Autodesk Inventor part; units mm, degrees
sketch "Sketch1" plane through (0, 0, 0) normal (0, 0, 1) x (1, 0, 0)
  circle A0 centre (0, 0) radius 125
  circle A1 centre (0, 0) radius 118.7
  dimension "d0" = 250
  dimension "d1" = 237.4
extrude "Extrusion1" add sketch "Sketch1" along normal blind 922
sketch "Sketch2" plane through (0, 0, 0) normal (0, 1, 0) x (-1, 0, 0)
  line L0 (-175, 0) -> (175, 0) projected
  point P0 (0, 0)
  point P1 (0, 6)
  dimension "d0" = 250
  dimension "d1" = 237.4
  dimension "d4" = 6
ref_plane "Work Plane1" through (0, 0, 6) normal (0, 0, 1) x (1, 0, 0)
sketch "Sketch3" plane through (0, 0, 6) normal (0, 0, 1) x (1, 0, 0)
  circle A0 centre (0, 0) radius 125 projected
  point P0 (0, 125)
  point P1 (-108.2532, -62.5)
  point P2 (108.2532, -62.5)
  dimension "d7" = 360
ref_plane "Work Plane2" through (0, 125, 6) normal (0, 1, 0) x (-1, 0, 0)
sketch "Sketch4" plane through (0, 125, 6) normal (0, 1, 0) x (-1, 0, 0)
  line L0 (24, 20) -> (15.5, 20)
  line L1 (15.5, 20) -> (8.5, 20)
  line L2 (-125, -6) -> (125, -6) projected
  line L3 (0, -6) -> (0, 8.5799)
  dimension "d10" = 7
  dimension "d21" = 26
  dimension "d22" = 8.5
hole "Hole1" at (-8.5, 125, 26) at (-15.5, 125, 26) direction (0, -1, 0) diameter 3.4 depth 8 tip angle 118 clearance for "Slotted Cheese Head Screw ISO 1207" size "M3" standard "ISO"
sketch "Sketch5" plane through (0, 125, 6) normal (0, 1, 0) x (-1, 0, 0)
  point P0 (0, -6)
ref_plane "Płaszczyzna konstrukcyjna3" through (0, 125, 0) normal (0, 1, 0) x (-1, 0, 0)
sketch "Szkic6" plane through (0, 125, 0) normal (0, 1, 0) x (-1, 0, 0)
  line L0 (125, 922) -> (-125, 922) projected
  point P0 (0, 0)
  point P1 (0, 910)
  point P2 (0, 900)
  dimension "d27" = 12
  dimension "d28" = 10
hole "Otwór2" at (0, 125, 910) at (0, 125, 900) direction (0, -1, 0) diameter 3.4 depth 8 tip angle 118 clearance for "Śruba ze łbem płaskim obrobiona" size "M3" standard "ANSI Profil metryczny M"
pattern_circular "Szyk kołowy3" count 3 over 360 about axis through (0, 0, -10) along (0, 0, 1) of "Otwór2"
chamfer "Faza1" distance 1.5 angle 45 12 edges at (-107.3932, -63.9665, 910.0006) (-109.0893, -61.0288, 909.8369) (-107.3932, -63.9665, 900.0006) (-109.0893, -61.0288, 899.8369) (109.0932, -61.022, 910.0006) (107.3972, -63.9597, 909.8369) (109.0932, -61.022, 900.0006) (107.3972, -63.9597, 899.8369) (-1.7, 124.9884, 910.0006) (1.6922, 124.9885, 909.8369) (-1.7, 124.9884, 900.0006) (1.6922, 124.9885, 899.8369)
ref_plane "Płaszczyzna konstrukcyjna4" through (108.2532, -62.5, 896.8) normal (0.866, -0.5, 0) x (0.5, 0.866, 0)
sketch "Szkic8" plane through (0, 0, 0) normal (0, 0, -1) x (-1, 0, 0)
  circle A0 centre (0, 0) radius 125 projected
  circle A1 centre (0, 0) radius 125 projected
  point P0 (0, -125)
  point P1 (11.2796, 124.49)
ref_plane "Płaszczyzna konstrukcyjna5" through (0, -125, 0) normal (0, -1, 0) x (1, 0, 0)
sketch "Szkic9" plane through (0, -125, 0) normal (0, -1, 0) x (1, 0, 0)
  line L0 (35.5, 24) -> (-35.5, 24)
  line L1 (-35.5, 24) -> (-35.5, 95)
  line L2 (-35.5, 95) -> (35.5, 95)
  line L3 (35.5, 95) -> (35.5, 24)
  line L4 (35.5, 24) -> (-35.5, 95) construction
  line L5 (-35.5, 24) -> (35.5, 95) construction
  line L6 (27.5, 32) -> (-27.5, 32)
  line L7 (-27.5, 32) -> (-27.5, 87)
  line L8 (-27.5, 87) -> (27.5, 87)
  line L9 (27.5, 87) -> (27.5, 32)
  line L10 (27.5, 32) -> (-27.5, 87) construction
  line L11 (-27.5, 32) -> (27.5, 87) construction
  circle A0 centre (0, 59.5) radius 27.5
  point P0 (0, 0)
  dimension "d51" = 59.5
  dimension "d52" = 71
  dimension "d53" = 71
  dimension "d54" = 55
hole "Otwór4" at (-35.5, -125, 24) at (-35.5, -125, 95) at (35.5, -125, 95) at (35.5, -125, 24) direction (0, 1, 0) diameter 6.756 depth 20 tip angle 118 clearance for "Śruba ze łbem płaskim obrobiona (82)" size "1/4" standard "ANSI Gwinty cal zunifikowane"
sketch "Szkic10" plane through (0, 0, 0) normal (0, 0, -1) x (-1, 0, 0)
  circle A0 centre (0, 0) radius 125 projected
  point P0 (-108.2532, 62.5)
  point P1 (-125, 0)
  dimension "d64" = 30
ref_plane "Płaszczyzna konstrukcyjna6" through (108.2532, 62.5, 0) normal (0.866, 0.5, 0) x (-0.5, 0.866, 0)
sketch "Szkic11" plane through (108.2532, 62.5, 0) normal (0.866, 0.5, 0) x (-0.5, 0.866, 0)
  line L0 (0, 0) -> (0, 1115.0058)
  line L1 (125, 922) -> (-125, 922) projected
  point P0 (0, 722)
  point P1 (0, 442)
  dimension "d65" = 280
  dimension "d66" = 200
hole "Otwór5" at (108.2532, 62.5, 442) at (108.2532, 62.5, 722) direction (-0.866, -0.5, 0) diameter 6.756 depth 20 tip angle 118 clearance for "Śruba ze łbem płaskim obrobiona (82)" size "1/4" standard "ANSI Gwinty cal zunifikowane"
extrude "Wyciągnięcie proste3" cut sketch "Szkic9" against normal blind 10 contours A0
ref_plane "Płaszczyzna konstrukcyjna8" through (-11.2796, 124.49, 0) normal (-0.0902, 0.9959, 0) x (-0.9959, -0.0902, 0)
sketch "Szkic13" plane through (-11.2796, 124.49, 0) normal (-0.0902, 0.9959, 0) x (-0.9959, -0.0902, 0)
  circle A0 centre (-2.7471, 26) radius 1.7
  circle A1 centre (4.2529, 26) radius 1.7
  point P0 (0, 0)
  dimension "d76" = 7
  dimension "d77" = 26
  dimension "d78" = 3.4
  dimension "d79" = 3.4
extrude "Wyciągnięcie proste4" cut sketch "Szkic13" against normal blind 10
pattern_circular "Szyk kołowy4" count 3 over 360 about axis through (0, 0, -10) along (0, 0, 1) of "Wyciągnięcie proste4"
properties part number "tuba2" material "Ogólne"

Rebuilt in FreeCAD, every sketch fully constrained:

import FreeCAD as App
import Part
import Sketcher
from FreeCAD import Vector


def edges_at(feature, points):
    """Names of the edges that pass closest to the given points."""
    edges = feature.Shape.Edges
    near = lambda p: min(range(len(edges)), key=lambda i: edges[i].distToShape(Part.Vertex(*p))[0])
    return sorted({f"Edge{near(p) + 1}" for p in points})

doc = App.newDocument("Part")
body = doc.addObject("PartDesign::Body", "Body")

# Sketch on XY plane
sketch1 = body.newObject("Sketcher::SketchObject", "Sketch")
sketch1.AttachmentSupport = (doc.getObject("XY_Plane"), [""])
sketch1.MapMode = "FlatFace"
sketch1.addGeometry([
    Part.Circle(Vector(0, 0, 0), Vector(0, 0, 1), 125),
    Part.Circle(Vector(0, 0, 0), Vector(0, 0, 1), 118.7),
], False)
sketch1.addConstraint([
    Sketcher.Constraint("Coincident", 0, 3, -1, 1),
    Sketcher.Constraint("Coincident", 1, 3, -1, 1),
    Sketcher.Constraint("Diameter", 0, 250.0),
    Sketcher.Constraint("Diameter", 1, 237.4),
])
pad1 = body.newObject("PartDesign::Pad", "Pad")
pad1.Profile = sketch1
pad1.Length = 922

# Sketch on XZ plane
sketch2 = body.newObject("Sketcher::SketchObject", "Sketch001")
sketch2.AttachmentSupport = (doc.getObject("XZ_Plane"), [""])
sketch2.MapMode = "FlatFace"
sketch2.AttachmentOffset = App.Placement(Vector(0, 0, -125), App.Rotation())
sketch2.addGeometry([
    Part.Circle(Vector(-8.5, 26, 0), Vector(0, 0, 1), 1.7),
    Part.Circle(Vector(-15.5, 26, 0), Vector(0, 0, 1), 1.7),
], False)
sketch2.addConstraint([
    Sketcher.Constraint("Equal", 0, 1),
    Sketcher.Constraint("Horizontal", 0, 3, 1, 3),
    Sketcher.Constraint("Diameter", 0, 3.4),
    Sketcher.Constraint("DistanceY", -1, 1, 0, 3, 26.0),
    Sketcher.Constraint("DistanceX", 1, 3, 0, 3, 7.0),
    Sketcher.Constraint("DistanceX", 0, 3, -1, 1, 8.5),
])
doc.recompute()
hole = body.newObject("PartDesign::Hole", "Hole")
hole.Profile = sketch2
hole.ThreadType = "None"
hole.Diameter = 3.4
hole.DepthType = "Dimension"
hole.Depth = 8
hole.DrillPoint = "Angled"
hole.DrillPointAngle = 118
hole.Reversed = True

# Sketch on XZ plane
sketch3 = body.newObject("Sketcher::SketchObject", "Sketch002")
sketch3.AttachmentSupport = (doc.getObject("XZ_Plane"), [""])
sketch3.MapMode = "FlatFace"
sketch3.AttachmentOffset = App.Placement(Vector(0, 0, -125), App.Rotation())
sketch3.addGeometry([
    Part.Circle(Vector(0, 910, 0), Vector(0, 0, 1), 1.7),
    Part.Circle(Vector(0, 900, 0), Vector(0, 0, 1), 1.7),
], False)
sketch3.addConstraint([
    Sketcher.Constraint("Equal", 0, 1),
    Sketcher.Constraint("PointOnObject", 0, 3, -2),
    Sketcher.Constraint("PointOnObject", 1, 3, -2),
    Sketcher.Constraint("Diameter", 0, 3.4),
    Sketcher.Constraint("DistanceY", -1, 1, 0, 3, 910.0),
    Sketcher.Constraint("DistanceY", -1, 1, 1, 3, 900.0),
])
doc.recompute()
hole2 = body.newObject("PartDesign::Hole", "Hole001")
hole2.Profile = sketch3
hole2.ThreadType = "None"
hole2.Diameter = 3.4
hole2.DepthType = "Dimension"
hole2.Depth = 8
hole2.DrillPoint = "Angled"
hole2.DrillPointAngle = 118
hole2.Reversed = True
doc.recompute()

polarpattern = body.newObject("PartDesign::PolarPattern", "PolarPattern")
polarpattern.Originals = [hole2]
polarpattern.Axis = (doc.getObject("Z_Axis"), [""])
polarpattern.Angle = 360
polarpattern.Occurrences = 3
body.Tip = polarpattern
doc.recompute()

chamfer = body.newObject("PartDesign::Chamfer", "Chamfer")
chamfer.Base = (polarpattern, edges_at(polarpattern, [
    (-107.393, -63.967, 910.001),
    (-109.089, -61.029, 909.837),
    (-107.393, -63.967, 900.001),
    (-109.089, -61.029, 899.837),
    (109.093, -61.022, 910.001),
    (107.397, -63.96, 909.837),
    (109.093, -61.022, 900.001),
    (107.397, -63.96, 899.837),
    (-1.7, 124.988, 910.001),
    (1.692, 124.989, 909.837),
    (-1.7, 124.988, 900.001),
    (1.692, 124.989, 899.837),
]))
chamfer.Size = 1.5

# Sketch on XZ plane
sketch4 = body.newObject("Sketcher::SketchObject", "Sketch003")
sketch4.AttachmentSupport = (doc.getObject("XZ_Plane"), [""])
sketch4.MapMode = "FlatFace"
sketch4.AttachmentOffset = App.Placement(Vector(0, 0, 125), App.Rotation())
sketch4.addGeometry([
    Part.Circle(Vector(-35.5, 24, 0), Vector(0, 0, 1), 3.378),
    Part.Circle(Vector(-35.5, 95, 0), Vector(0, 0, 1), 3.378),
    Part.Circle(Vector(35.5, 95, 0), Vector(0, 0, 1), 3.378),
    Part.Circle(Vector(35.5, 24, 0), Vector(0, 0, 1), 3.378),
], False)
sketch4.addConstraint([
    Sketcher.Constraint("Equal", 0, 1),
    Sketcher.Constraint("Equal", 1, 2),
    Sketcher.Constraint("Equal", 2, 3),
    Sketcher.Constraint("Symmetric", 1, 3, 2, 3, -2),
    Sketcher.Constraint("Symmetric", 0, 3, 3, 3, -2),
    Sketcher.Constraint("Vertical", 0, 3, 1, 3),
    Sketcher.Constraint("Diameter", 0, 6.756),
    Sketcher.Constraint("DistanceY", -1, 1, 0, 3, 24.0),
    Sketcher.Constraint("DistanceY", -1, 1, 1, 3, 95.0),
    Sketcher.Constraint("DistanceX", 1, 3, 2, 3, 71.0),
])
doc.recompute()
hole3 = body.newObject("PartDesign::Hole", "Hole002")
hole3.Profile = sketch4
hole3.ThreadType = "None"
hole3.Diameter = 6.756
hole3.DepthType = "Dimension"
hole3.Depth = 20
hole3.DrillPoint = "Angled"
hole3.DrillPointAngle = 118

# Sketch on an angled plane
sketch5 = body.newObject("Sketcher::SketchObject", "Sketch004")
sketch5.Placement = App.Placement(Vector(108.253194, 62.500011, 0), App.Rotation(Vector(-0.5, 0.866025404, 0), Vector(0, 0, 1), Vector(0.866025404, 0.5, 0), "ZXY"))
sketch5.addGeometry([
    Part.Circle(Vector(-0.000012, 442, 0), Vector(0, 0, 1), 3.378),
    Part.Circle(Vector(-0.000012, 722.000001, 0), Vector(0, 0, 1), 3.378),
], False)
sketch5.addConstraint([
    Sketcher.Constraint("Equal", 0, 1),
    Sketcher.Constraint("PointOnObject", 0, 3, -2),
    Sketcher.Constraint("PointOnObject", 1, 3, -2),
    Sketcher.Constraint("Diameter", 0, 6.756),
    Sketcher.Constraint("DistanceY", -1, 1, 0, 3, 442.0),
    Sketcher.Constraint("DistanceY", -1, 1, 1, 3, 722.0),
])
doc.recompute()
hole4 = body.newObject("PartDesign::Hole", "Hole003")
hole4.Profile = sketch5
hole4.ThreadType = "None"
hole4.Diameter = 6.756
hole4.DepthType = "Dimension"
hole4.Depth = 20
hole4.DrillPoint = "Angled"
hole4.DrillPointAngle = 118

# Sketch on XZ plane
sketch6 = body.newObject("Sketcher::SketchObject", "Sketch005")
sketch6.AttachmentSupport = (doc.getObject("XZ_Plane"), [""])
sketch6.MapMode = "FlatFace"
sketch6.AttachmentOffset = App.Placement(Vector(0, 0, 125), App.Rotation())
sketch6.addGeometry(Part.Circle(Vector(0, 59.5, 0), Vector(0, 0, 1), 27.5), False)
sketch6.addConstraint([
    Sketcher.Constraint("PointOnObject", 0, 3, -2),
    Sketcher.Constraint("Diameter", 0, 55.0),
    Sketcher.Constraint("DistanceY", -1, 1, 0, 3, 59.5),
])
pocket1 = body.newObject("PartDesign::Pocket", "Pocket")
pocket1.Profile = sketch6
pocket1.Length = 10

# Sketch on an angled plane
sketch7 = body.newObject("Sketcher::SketchObject", "Sketch006")
sketch7.Placement = App.Placement(Vector(-11.2796, 124.49, 0), App.Rotation(Vector(-0.995923479, -0.090202127, 0), Vector(0, 0, 1), Vector(-0.090202127, 0.995923479, 0), "ZXY"))
sketch7.addGeometry([
    Part.Circle(Vector(-2.7471, 26, 0), Vector(0, 0, 1), 1.7),
    Part.Circle(Vector(4.2529, 26, 0), Vector(0, 0, 1), 1.7),
], False)
sketch7.addConstraint([
    Sketcher.Constraint("Equal", 0, 1),
    Sketcher.Constraint("Horizontal", 0, 3, 1, 3),
    Sketcher.Constraint("Diameter", 0, 3.4),
    Sketcher.Constraint("DistanceY", -1, 1, 0, 3, 26.0),
    Sketcher.Constraint("DistanceX", 0, 3, 1, 3, 7.0),
    Sketcher.Constraint("DistanceX", 0, 3, -1, 1, 2.747),
])
pocket2 = body.newObject("PartDesign::Pocket", "Pocket001")
pocket2.Profile = sketch7
pocket2.Length = 10
doc.recompute()

polarpattern2 = body.newObject("PartDesign::PolarPattern", "PolarPattern001")
polarpattern2.Originals = [pocket2]
polarpattern2.Axis = (doc.getObject("Z_Axis"), [""])
polarpattern2.Angle = 360
polarpattern2.Occurrences = 3
body.Tip = polarpattern2

doc.recompute()
